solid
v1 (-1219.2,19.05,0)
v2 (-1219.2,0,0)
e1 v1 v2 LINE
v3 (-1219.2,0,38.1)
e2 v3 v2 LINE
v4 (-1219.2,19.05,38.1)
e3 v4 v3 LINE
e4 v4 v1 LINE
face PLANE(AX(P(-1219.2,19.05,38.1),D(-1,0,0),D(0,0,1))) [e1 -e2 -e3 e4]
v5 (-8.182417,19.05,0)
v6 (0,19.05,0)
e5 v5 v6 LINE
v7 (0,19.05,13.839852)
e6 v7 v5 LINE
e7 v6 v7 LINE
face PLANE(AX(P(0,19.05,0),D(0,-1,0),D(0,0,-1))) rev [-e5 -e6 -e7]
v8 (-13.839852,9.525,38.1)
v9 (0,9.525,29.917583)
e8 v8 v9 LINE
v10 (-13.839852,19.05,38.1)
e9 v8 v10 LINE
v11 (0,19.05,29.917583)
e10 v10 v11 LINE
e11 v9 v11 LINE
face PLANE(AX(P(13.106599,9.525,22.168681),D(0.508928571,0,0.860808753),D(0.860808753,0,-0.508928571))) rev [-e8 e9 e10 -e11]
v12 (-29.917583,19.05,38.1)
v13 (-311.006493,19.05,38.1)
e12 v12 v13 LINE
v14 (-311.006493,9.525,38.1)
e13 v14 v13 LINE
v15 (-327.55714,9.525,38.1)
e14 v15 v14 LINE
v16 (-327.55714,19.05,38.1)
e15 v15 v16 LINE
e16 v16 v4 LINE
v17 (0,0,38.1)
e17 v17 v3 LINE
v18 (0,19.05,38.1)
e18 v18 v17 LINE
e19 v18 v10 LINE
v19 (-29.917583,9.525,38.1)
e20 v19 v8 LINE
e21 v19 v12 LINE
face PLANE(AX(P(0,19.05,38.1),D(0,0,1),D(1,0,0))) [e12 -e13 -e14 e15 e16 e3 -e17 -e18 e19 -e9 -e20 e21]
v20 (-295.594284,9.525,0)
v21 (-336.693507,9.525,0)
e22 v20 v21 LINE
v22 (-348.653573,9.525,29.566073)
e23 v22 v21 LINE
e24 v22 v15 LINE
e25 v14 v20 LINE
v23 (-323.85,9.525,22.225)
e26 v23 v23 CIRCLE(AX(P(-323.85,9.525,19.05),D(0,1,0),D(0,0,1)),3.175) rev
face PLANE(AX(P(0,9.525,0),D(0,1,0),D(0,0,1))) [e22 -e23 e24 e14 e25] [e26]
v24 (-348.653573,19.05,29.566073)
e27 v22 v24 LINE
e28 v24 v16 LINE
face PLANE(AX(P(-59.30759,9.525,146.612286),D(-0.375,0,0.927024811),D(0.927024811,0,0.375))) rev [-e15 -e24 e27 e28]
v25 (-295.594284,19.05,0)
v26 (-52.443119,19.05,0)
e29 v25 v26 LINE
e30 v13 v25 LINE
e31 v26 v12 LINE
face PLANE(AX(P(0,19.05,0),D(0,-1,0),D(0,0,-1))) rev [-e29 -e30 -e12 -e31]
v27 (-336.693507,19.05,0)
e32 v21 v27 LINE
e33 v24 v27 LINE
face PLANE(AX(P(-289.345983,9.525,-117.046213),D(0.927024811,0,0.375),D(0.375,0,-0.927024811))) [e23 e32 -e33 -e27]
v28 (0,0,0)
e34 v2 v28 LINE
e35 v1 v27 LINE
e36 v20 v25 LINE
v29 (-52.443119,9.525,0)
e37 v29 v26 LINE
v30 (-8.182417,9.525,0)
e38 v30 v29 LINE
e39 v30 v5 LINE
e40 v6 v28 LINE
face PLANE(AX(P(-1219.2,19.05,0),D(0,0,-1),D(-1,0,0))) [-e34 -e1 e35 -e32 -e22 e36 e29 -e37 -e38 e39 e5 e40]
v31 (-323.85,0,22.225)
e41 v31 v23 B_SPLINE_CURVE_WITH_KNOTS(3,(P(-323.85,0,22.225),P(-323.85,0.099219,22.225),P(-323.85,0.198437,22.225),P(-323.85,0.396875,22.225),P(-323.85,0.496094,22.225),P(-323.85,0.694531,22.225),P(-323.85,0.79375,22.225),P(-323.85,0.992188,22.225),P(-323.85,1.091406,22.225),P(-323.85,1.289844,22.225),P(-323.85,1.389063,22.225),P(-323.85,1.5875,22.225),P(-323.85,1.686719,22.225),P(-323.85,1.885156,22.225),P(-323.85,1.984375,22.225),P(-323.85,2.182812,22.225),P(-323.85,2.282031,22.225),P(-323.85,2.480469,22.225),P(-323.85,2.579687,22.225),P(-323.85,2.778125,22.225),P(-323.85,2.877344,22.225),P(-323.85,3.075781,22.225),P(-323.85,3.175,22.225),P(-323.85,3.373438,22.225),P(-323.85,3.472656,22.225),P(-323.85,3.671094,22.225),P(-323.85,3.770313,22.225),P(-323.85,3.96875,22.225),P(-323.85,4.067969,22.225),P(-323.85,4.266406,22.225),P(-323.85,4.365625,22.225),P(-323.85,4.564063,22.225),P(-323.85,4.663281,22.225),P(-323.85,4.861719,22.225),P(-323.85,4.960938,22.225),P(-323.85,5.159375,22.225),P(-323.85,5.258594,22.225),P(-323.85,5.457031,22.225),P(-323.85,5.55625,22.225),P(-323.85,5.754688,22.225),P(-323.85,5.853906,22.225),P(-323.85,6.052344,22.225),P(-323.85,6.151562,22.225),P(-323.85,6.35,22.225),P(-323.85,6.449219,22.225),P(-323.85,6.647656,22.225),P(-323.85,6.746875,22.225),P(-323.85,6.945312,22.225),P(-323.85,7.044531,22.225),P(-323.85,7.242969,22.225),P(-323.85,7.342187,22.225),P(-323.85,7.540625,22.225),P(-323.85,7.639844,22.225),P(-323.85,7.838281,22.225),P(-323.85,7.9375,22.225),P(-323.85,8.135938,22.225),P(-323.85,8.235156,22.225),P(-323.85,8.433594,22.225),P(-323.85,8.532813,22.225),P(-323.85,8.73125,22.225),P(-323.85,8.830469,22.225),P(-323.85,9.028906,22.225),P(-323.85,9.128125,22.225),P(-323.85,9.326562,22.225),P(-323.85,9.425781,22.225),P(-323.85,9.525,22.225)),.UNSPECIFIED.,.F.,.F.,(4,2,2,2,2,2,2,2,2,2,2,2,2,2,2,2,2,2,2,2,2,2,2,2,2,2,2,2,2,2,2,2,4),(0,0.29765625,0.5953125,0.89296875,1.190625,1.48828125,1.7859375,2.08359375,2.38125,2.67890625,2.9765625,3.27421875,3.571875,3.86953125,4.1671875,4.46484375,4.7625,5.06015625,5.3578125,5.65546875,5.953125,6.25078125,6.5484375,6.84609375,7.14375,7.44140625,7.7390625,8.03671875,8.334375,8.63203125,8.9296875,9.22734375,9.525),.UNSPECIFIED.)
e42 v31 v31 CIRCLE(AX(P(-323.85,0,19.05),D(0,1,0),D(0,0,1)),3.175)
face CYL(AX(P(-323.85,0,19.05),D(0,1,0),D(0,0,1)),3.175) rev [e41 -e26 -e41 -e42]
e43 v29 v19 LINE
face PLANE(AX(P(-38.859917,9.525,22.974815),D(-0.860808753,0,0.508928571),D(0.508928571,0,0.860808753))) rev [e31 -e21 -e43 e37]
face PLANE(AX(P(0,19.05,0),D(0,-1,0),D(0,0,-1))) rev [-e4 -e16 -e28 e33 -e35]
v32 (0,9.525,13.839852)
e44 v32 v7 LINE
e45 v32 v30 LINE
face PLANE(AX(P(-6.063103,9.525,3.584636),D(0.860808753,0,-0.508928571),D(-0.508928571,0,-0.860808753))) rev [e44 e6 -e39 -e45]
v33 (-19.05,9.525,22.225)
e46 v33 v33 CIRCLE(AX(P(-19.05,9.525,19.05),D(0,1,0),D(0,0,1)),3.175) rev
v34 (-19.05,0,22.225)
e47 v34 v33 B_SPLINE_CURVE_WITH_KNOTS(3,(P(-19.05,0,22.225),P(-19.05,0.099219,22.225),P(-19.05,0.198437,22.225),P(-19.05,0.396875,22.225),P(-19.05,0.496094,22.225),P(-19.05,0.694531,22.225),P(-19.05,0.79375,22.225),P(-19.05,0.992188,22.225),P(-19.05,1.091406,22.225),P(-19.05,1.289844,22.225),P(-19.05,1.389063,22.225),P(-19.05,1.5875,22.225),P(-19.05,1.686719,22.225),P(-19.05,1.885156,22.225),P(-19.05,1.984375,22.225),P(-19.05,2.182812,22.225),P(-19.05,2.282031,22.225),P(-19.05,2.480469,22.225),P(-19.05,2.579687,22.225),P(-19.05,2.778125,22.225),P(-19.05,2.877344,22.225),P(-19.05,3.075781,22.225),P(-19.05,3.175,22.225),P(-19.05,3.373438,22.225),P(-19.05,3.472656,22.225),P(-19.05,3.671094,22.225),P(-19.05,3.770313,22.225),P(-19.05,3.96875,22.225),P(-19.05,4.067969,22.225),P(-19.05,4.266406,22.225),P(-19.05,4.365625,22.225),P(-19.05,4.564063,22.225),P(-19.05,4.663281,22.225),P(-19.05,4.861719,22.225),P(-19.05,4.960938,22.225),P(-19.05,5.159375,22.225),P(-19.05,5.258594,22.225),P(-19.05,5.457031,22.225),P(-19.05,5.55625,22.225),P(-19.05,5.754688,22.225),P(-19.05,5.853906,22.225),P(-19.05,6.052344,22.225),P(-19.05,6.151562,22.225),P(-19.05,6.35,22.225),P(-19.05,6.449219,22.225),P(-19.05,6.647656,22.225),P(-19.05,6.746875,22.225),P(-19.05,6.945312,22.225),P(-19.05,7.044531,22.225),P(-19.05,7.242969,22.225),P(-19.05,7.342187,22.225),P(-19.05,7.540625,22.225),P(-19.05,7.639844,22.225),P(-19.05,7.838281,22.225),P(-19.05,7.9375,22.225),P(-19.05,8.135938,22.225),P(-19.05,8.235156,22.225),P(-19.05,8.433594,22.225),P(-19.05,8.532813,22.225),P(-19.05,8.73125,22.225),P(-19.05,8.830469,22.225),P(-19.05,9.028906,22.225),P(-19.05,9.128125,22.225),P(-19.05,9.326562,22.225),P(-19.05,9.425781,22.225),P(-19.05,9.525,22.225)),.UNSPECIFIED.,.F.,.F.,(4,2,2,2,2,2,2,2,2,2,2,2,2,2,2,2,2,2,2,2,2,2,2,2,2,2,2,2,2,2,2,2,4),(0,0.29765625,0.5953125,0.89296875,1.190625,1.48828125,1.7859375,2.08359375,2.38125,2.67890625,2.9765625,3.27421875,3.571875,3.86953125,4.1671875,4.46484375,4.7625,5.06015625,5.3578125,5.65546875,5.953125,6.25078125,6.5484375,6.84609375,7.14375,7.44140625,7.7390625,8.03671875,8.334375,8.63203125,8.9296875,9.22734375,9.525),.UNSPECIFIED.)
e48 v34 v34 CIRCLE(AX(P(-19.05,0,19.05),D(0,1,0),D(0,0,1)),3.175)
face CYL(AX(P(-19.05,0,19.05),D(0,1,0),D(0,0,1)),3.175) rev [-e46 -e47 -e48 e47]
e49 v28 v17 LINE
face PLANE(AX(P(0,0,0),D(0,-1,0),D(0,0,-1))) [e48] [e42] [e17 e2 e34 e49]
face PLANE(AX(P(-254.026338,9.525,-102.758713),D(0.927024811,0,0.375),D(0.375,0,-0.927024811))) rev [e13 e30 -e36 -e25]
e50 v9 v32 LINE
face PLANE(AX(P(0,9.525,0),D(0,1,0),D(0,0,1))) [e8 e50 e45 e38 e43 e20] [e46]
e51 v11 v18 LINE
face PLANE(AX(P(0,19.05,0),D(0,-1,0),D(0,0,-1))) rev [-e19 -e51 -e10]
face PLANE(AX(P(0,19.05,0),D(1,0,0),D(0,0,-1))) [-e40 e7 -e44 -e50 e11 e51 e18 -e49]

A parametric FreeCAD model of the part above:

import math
import FreeCAD as App
import Part
import Sketcher
Q = App.Units.Quantity


def add_polygon(sketch, points):
    """Adds a closed chain of lines whose ends are joined by coincident constraints."""
    first, n = sketch.GeometryCount, len(points)
    for a, b in zip(points, points[1:] + points[:1]):
        sketch.addGeometry(Part.LineSegment(App.Vector(*a, 0), App.Vector(*b, 0)), False)
    for i in range(n):
        sketch.addConstraint(Sketcher.Constraint("Coincident", first + i, 2, first + (i + 1) % n, 1))

doc = App.newDocument("Part")
body = doc.addObject("PartDesign::Body", "Body")

sketch1 = doc.addObject("Sketcher::SketchObject", "Sketch")
body.addObject(sketch1)
sketch1.AttachmentSupport = (doc.XZ_Plane, [""])
sketch1.MapMode = "FlatFace"
add_polygon(sketch1, [(-1219, 0), (-1219, 38), (0, 38), (0, 0)])
sketch1.addConstraint(Sketcher.Constraint("Vertical", 0))
sketch1.addConstraint(Sketcher.Constraint("Horizontal", 1))
sketch1.addConstraint(Sketcher.Constraint("Vertical", 2))
sketch1.addConstraint(Sketcher.Constraint("Horizontal", 3))
sketch1.addConstraint(Sketcher.Constraint("Coincident", 2, 2, -1, 1))
sketch1.addConstraint(Sketcher.Constraint("DistanceX", 1, 1, 1, 2, Q("48 in")))
sketch1.addConstraint(Sketcher.Constraint("DistanceY", 0, 1, 0, 2, Q("1.5 in")))
pad1 = doc.addObject("PartDesign::Pad", "Pad")
body.addObject(pad1)
pad1.Profile = sketch1
pad1.Length = Q("0.75 in")
pad1.Reversed = True

sketch2 = doc.addObject("Sketcher::SketchObject", "Sketch001")
body.addObject(sketch2)
sketch2.AttachmentSupport = (doc.XZ_Plane, [""])
sketch2.MapMode = "FlatFace"
sketch2.AttachmentOffset = App.Placement(App.Vector(0, 0, -0.75 * 25.4), App.Rotation())
sketch2.addGeometry(Part.Circle(App.Vector(-19.1, 19.1, 0), App.Vector(0, 0, 1), 3.2), False)
sketch2.addGeometry(Part.Circle(App.Vector(-323.9, 19.1, 0), App.Vector(0, 0, 1), 3.2), False)
sketch2.addConstraint(Sketcher.Constraint("Equal", 0, 1))
sketch2.addConstraint(Sketcher.Constraint("Horizontal", 0, 3, 1, 3))
sketch2.addConstraint(Sketcher.Constraint("Diameter", 0, Q("0.25 in")))
sketch2.addConstraint(Sketcher.Constraint("DistanceX", 1, 3, 0, 3, Q("12 in")))
sketch2.addConstraint(Sketcher.Constraint("DistanceX", 0, 3, -1, 1, Q("0.75 in")))
sketch2.addConstraint(Sketcher.Constraint("DistanceY", -1, 1, 0, 3, Q("0.75 in")))
pocket1 = doc.addObject("PartDesign::Pocket", "Pocket")
body.addObject(pocket1)
pocket1.Profile = sketch2
pocket1.Length = Q("0.75 in")
pocket1.Reversed = True

sketch3 = doc.addObject("Sketcher::SketchObject", "Sketch002")
body.addObject(sketch3)
sketch3.AttachmentSupport = (doc.XZ_Plane, [""])
sketch3.MapMode = "FlatFace"
sketch3.AttachmentOffset = App.Placement(App.Vector(0, 0, -0.75 * 25.4), App.Rotation())
add_polygon(sketch3, [(-306.2, 26.2), (-295.6, 0), (-336.7, 0), (-341.5, 11.9), (-348.7, 29.6), (-327.6, 38.1), (-311, 38.1)])
sketch3.addGeometry(Part.ArcOfCircle(Part.Circle(App.Vector(-323.9, 19.1, 0), App.Vector(0, 0, 1), 3.2), math.radians(-68), math.radians(0)), False)
sketch3.addGeometry(Part.ArcOfCircle(Part.Circle(App.Vector(-323.9, 19, 0), App.Vector(0, 0, 1), 3.2), math.radians(0), math.radians(22)), False)
sketch3.addGeometry(Part.ArcOfCircle(Part.Circle(App.Vector(-323.9, 19.1, 0), App.Vector(0, 0, 1), 3.2), math.radians(22), math.radians(202)), False)
sketch3.addGeometry(Part.ArcOfCircle(Part.Circle(App.Vector(-323.8, 19.1, 0), App.Vector(0, 0, 1), 3.2), math.radians(-158), math.radians(-68)), False)
add_polygon(sketch3, [(-35.4, 28.7), (-29.9, 38.1), (-13.8, 38.1), (0, 29.9), (0, 13.8), (-2.7, 9.4), (-8.2, 0), (-52.4, 0)])
sketch3.addGeometry(Part.ArcOfCircle(Part.Circle(App.Vector(-19.1, 19.1, 0), App.Vector(0, 0, 1), 3.2), math.radians(-31), math.radians(0)), False)
sketch3.addGeometry(Part.ArcOfCircle(Part.Circle(App.Vector(-19.1, 19.1, 0), App.Vector(0, 0, 1), 3.2), math.radians(0), math.radians(149)), False)
sketch3.addGeometry(Part.ArcOfCircle(Part.Circle(App.Vector(-19.1, 19.1, 0), App.Vector(0, 0, 1), 3.2), math.radians(149), math.radians(239)), False)
sketch3.addGeometry(Part.ArcOfCircle(Part.Circle(App.Vector(-19.1, 19.1, 0), App.Vector(0, 0, 1), 3.2), math.radians(-121), math.radians(-31)), False)
sketch3.addConstraint(Sketcher.Constraint("Tangent", 7, 2, 8, 1))
sketch3.addConstraint(Sketcher.Constraint("Tangent", 8, 2, 9, 1))
sketch3.addConstraint(Sketcher.Constraint("Tangent", 9, 2, 10, 1))
sketch3.addConstraint(Sketcher.Constraint("Tangent", 10, 2, 7, 1))
sketch3.addConstraint(Sketcher.Constraint("Tangent", 19, 2, 20, 1))
sketch3.addConstraint(Sketcher.Constraint("Tangent", 20, 2, 21, 1))
sketch3.addConstraint(Sketcher.Constraint("Tangent", 21, 2, 22, 1))
sketch3.addConstraint(Sketcher.Constraint("Tangent", 22, 2, 19, 1))
sketch3.addConstraint(Sketcher.Constraint("Horizontal", 1))
sketch3.addConstraint(Sketcher.Constraint("Horizontal", 5))
sketch3.addConstraint(Sketcher.Constraint("Horizontal", 12))
sketch3.addConstraint(Sketcher.Constraint("Vertical", 14))
sketch3.addConstraint(Sketcher.Constraint("Horizontal", 17))
sketch3.addConstraint(Sketcher.Constraint("Equal", 7, 8))
sketch3.addConstraint(Sketcher.Constraint("Equal", 10, 19))
sketch3.addConstraint(Sketcher.Constraint("Equal", 19, 20))
sketch3.addConstraint(Sketcher.Constraint("PointOnObject", 0, 2, -1))
sketch3.addConstraint(Sketcher.Constraint("PointOnObject", 13, 2, -2))
sketch3.addConstraint(Sketcher.Constraint("PointOnObject", 16, 2, -1))
sketch3.addConstraint(Sketcher.Constraint("Parallel", 0, 2))
sketch3.addConstraint(Sketcher.Constraint("Parallel", 2, 3))
sketch3.addConstraint(Sketcher.Constraint("Perpendicular", 3, 4))
sketch3.addConstraint(Sketcher.Constraint("Perpendicular", 4, 6))
sketch3.addConstraint(Sketcher.Constraint("Perpendicular", 11, 13))
sketch3.addConstraint(Sketcher.Constraint("Perpendicular", 13, 15))
sketch3.addConstraint(Sketcher.Constraint("Parallel", 15, 16))
sketch3.addConstraint(Sketcher.Constraint("Parallel", 16, 18))
sketch3.addConstraint(Sketcher.Constraint("Horizontal", 10, 3, 19, 3))
sketch3.addConstraint(Sketcher.Constraint("Horizontal", 22, 3, 7, 2))
sketch3.addConstraint(Sketcher.Constraint("Horizontal", 5, 2, 11, 2))
sketch3.addConstraint(Sketcher.Constraint("Horizontal", 7, 2, 19, 2))
sketch3.addConstraint(Sketcher.Constraint("Equal", 12, 14))
sketch3.addConstraint(Sketcher.Constraint("Equal", 2, 6))
sketch3.addConstraint(Sketcher.Constraint("Equal", 11, 16))
sketch3.addConstraint(Sketcher.Constraint("Radius", 7, Q("0.125 in")))
sketch3.addConstraint(Sketcher.Constraint("DistanceX", 10, 3, 19, 3, Q("12 in")))
sketch3.addConstraint(Sketcher.Constraint("DistanceY", -1, 1, 4, 2, Q("1.5 in")))
sketch3.addConstraint(Sketcher.Constraint("Distance", 3, Q("0.75 in")))
sketch3.addConstraint(Sketcher.Constraint("DistanceX", 7, 3, -1, 1, Q("12.75 in")))
sketch3.addConstraint(Sketcher.Constraint("DistanceY", -1, 1, 7, 3, Q("0.75 in")))
sketch3.addConstraint(Sketcher.Constraint("DistanceY", -1, 1, 2, 2, Q("0.46875 in")))
sketch3.addConstraint(Sketcher.Constraint("DistanceY", -1, 1, 8, 2, Q("0.796875 in")))
sketch3.addConstraint(Sketcher.Constraint("DistanceY", -1, 1, 9, 2, Q("0.703125 in")))
sketch3.addConstraint(Sketcher.Constraint("DistanceX", 10, 2, -1, 1, Q("12.703125 in")))
sketch3.addConstraint(Sketcher.Constraint("DistanceX", 3, 2, 2, 2, Q("0.28125 in")))
sketch3.addConstraint(Sketcher.Constraint("DistanceX", 12, 1, 12, 2, 16.077731))
sketch3.addConstraint(Sketcher.Constraint("DistanceX", 0, 2, 11, 2, 265.676701))
sketch3.addConstraint(Sketcher.Constraint("Distance", 13, 16.077731))
sketch3.addConstraint(Sketcher.Constraint("Distance", 15, 5.210148))
sketch3.addConstraint(Sketcher.Constraint("Distance", 18, 33.393119))
sketch3.addConstraint(Sketcher.Constraint("DistanceX", 1, 2, 1, 1, 41.099224))
sketch3.addConstraint(Sketcher.Constraint("DistanceY", -1, 1, 20, 2, 20.665848))
sketch3.addConstraint(Sketcher.Constraint("DistanceX", 21, 2, -1, 1, 20.665848))
sketch3.addConstraint(Sketcher.Constraint("DistanceY", -1, 1, 22, 2, 17.434152))
pocket2 = doc.addObject("PartDesign::Pocket", "Pocket001")
body.addObject(pocket2)
pocket2.Profile = sketch3
pocket2.Length = Q("0.375 in")
pocket2.Reversed = True

doc.recompute()
